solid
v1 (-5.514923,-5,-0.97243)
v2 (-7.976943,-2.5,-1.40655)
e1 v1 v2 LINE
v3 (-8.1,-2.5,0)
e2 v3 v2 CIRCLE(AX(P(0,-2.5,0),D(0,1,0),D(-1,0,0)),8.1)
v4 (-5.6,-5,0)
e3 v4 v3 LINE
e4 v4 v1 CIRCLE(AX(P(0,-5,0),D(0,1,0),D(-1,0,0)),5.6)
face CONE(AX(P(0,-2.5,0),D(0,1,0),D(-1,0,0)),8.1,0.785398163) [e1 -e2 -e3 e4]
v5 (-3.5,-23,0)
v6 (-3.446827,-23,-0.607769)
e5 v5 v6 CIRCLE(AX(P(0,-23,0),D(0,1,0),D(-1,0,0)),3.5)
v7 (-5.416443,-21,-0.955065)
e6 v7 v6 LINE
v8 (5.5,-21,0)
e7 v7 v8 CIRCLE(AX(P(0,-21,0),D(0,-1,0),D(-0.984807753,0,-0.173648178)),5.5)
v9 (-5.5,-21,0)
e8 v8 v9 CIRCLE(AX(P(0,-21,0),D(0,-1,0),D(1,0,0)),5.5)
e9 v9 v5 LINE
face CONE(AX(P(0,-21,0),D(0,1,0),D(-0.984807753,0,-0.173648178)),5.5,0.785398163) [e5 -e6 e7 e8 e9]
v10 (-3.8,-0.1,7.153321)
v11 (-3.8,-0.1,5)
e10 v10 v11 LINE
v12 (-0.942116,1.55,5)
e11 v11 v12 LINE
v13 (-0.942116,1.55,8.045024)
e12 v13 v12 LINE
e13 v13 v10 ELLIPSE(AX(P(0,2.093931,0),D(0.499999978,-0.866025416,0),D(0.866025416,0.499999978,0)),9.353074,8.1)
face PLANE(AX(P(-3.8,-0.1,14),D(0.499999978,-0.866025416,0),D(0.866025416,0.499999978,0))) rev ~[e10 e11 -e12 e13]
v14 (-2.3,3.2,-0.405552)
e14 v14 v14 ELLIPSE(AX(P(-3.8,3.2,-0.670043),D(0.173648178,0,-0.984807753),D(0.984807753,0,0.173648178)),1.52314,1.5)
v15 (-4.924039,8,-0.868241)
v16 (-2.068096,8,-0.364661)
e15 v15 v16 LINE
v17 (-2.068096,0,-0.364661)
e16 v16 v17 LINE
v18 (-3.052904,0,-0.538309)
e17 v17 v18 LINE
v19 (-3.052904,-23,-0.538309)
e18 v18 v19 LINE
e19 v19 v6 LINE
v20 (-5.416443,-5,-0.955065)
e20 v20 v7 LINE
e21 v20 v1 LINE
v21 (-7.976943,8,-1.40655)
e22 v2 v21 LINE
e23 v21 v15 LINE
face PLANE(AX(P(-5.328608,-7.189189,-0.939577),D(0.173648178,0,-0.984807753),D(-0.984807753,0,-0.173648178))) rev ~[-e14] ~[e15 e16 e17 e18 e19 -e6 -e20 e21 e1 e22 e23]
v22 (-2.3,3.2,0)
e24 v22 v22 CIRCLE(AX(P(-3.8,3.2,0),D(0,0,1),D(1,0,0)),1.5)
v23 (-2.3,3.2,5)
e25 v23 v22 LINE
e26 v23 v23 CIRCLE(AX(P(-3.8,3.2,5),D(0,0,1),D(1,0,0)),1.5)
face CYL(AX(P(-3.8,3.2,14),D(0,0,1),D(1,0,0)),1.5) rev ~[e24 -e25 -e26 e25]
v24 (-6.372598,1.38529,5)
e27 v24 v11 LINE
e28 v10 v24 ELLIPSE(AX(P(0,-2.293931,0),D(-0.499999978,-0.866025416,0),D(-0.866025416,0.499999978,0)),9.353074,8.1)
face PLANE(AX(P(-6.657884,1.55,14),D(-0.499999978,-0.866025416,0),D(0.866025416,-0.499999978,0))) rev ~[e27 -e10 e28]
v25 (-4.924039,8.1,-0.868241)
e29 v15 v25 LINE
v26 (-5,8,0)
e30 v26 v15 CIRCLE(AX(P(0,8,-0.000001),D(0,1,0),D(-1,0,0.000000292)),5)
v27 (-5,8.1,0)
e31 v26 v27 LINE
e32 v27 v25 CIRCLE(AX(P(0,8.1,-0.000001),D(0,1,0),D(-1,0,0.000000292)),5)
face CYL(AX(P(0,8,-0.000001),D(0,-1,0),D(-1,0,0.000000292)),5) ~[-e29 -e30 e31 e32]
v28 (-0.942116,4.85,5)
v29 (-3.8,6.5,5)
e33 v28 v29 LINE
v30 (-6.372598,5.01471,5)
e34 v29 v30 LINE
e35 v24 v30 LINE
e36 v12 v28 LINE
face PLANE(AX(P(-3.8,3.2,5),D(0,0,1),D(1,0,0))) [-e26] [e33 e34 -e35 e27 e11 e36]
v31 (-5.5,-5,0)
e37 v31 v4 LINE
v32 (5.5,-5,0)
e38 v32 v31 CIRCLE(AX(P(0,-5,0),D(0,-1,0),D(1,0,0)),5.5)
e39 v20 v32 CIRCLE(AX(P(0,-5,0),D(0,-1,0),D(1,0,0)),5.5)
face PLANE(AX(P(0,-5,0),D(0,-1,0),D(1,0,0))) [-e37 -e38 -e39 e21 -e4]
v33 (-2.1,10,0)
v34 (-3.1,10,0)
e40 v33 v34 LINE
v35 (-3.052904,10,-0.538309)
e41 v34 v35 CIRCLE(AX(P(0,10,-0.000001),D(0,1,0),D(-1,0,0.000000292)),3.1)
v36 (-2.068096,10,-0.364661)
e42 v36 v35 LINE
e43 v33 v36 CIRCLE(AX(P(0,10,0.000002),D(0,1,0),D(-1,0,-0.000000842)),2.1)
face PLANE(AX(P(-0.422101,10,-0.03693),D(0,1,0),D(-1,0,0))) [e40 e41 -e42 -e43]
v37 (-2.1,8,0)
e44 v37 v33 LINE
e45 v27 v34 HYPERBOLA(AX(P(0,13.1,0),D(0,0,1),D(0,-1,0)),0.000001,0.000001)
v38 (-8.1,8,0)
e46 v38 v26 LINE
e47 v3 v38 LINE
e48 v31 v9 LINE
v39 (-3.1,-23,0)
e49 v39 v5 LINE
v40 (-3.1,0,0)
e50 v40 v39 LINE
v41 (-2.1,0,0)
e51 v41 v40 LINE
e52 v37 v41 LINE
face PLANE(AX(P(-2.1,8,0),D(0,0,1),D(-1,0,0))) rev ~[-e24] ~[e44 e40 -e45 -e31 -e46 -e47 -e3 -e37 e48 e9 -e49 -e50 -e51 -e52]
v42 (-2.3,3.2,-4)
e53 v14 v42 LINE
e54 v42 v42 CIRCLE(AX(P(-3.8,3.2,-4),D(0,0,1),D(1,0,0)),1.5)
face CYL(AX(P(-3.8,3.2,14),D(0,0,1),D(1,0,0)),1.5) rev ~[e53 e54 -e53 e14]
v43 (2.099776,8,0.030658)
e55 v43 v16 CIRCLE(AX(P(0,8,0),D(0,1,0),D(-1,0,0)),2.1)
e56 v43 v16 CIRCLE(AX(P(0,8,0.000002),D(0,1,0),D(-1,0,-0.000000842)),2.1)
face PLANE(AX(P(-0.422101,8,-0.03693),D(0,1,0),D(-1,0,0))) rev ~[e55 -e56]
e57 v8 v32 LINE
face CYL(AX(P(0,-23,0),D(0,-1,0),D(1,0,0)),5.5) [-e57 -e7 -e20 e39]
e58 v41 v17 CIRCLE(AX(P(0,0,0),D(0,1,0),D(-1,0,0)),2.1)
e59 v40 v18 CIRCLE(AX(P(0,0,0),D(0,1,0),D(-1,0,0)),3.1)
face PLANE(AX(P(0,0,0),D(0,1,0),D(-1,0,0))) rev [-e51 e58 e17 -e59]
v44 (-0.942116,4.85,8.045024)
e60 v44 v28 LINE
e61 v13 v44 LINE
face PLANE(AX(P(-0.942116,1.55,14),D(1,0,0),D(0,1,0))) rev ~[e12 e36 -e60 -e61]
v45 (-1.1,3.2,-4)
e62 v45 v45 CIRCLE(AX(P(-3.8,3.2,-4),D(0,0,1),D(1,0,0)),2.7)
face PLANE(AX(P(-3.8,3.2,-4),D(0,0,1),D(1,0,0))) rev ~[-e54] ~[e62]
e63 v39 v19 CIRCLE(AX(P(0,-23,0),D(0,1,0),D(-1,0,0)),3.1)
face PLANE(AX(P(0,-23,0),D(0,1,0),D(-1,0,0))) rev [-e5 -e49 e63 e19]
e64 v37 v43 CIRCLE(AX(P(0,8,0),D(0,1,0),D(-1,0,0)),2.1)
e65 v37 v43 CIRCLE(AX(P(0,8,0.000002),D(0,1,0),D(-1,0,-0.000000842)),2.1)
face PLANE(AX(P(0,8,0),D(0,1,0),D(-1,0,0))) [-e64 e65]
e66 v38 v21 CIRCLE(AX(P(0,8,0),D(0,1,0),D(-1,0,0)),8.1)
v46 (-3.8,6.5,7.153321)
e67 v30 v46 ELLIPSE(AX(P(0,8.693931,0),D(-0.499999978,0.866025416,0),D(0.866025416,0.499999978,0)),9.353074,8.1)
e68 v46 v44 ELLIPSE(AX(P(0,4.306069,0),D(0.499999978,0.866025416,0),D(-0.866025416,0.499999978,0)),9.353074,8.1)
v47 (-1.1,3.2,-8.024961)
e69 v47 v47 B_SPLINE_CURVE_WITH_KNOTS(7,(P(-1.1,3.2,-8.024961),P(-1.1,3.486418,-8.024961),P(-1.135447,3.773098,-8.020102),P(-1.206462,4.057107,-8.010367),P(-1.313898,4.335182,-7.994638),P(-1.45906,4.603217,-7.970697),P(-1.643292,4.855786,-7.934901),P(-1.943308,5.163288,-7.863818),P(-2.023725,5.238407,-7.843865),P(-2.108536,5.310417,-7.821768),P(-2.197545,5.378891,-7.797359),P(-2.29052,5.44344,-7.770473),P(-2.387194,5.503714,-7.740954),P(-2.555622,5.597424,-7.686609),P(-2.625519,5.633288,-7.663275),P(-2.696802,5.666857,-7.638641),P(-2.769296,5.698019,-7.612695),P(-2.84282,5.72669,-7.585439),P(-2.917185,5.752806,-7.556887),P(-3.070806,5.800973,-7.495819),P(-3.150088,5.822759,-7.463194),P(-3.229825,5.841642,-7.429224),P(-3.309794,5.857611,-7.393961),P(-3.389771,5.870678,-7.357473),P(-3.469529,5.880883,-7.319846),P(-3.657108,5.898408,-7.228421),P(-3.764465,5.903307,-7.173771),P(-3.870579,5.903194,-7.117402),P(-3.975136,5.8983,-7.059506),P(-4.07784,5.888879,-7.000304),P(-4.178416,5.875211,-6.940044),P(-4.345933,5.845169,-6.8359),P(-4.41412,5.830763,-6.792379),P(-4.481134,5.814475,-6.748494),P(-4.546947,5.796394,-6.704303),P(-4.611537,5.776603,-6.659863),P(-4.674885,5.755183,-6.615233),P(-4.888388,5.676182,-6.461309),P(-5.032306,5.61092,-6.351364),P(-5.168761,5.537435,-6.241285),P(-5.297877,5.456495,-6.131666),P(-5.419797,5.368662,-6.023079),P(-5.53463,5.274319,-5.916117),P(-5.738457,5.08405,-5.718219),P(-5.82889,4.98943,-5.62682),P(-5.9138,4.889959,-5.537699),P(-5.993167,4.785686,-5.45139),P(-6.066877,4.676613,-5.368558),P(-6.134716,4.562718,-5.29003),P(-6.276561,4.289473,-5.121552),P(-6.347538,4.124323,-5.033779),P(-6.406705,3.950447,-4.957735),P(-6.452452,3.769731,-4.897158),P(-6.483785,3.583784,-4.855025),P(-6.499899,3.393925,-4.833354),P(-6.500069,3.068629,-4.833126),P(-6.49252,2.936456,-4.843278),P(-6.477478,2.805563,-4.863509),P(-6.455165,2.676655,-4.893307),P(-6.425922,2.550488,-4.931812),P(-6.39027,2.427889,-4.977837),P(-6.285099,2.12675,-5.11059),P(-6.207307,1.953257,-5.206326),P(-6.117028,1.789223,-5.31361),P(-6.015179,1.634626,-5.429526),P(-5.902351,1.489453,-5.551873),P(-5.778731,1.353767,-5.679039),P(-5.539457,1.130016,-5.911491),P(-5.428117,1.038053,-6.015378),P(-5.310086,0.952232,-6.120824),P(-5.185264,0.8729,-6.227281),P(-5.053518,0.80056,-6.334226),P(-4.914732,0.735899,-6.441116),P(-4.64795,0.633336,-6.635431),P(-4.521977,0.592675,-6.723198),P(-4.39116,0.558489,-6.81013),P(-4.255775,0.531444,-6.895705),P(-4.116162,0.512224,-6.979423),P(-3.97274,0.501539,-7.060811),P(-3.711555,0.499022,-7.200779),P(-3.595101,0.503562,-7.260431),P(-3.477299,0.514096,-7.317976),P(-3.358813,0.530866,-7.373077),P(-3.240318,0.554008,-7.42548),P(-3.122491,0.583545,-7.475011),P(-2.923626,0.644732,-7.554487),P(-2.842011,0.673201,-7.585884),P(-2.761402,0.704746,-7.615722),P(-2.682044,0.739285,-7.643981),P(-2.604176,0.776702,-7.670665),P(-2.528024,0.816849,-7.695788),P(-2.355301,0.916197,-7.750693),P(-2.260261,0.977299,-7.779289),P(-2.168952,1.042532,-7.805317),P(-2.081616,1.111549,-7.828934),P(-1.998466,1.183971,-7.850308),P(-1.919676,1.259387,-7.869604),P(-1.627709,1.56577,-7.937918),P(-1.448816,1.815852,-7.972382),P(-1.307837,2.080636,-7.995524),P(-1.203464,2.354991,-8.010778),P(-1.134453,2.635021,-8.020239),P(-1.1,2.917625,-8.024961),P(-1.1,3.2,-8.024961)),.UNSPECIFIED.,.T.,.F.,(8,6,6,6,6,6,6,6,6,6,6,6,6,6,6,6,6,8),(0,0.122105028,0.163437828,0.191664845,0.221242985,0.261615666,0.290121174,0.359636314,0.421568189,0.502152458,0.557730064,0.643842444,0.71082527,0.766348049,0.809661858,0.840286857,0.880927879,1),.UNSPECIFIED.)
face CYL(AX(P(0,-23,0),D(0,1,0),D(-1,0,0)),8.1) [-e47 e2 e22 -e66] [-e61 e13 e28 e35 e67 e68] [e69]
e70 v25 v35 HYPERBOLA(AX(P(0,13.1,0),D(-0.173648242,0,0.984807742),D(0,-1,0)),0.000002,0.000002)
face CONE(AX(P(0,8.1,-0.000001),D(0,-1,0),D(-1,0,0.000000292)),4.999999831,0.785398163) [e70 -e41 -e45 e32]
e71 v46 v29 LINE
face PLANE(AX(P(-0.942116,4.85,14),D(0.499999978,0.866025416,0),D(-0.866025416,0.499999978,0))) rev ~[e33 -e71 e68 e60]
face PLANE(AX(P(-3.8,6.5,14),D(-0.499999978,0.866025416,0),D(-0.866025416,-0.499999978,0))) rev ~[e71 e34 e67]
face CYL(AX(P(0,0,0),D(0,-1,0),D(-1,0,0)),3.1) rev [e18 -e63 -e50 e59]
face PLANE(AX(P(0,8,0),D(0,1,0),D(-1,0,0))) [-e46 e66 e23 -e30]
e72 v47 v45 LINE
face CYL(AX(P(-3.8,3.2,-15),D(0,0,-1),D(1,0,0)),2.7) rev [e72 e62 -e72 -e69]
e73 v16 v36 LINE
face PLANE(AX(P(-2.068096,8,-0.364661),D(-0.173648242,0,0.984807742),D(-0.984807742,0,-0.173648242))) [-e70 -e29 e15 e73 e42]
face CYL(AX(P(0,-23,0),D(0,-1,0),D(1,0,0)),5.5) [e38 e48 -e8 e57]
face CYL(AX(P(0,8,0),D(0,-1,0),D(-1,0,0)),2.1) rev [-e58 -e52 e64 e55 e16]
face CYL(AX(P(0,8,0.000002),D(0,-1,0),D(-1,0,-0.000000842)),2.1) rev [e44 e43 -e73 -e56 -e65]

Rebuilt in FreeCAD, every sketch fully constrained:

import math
import FreeCAD as App
import Part
import Sketcher
Q = App.Units.Quantity


def edges_at(feature, points):
    """Names of the edges that pass closest to the given points."""
    edges = feature.Shape.Edges
    near = lambda p: min(range(len(edges)), key=lambda i: edges[i].distToShape(Part.Vertex(*p))[0])
    return sorted({f"Edge{near(p) + 1}" for p in points})


def add_polygon(sketch, points):
    """Adds a closed chain of lines whose ends are joined by coincident constraints."""
    first, n = sketch.GeometryCount, len(points)
    for a, b in zip(points, points[1:] + points[:1]):
        sketch.addGeometry(Part.LineSegment(App.Vector(*a, 0), App.Vector(*b, 0)), False)
    for i in range(n):
        sketch.addConstraint(Sketcher.Constraint("Coincident", first + i, 2, first + (i + 1) % n, 1))

doc = App.newDocument("Part")
params = doc.addObject("Spreadsheet::Sheet", "Params")
for row, (alias, value) in enumerate([
    ("sketch1_width", "6 mm"),
    ("sketch1_width2", "5 mm"),
    ("sketch1_height", "8 mm"),
    ("sketch1_height2", "31 mm"),
    ("revolution_angle", "350 deg"),
    ("sketch2_diameter", "3 mm"),
    ("sketch3_height", "3.3 mm"),
    ("sketch3_length", "3.3 mm"),
    ("pocket2_length", "9 mm"),
    ("sketch4_diameter", "5.4 mm"),
    ("pocket3_length", "11 mm"),
    ("sketch5_diameter", "11 mm"),
    ("sketch5_diameter2", "16.2 mm"),
    ("pocket4_length", "18 mm"),
    ("chamfer_size", "2.5 mm"),
    ("chamfer2_size", "2 mm"),
    ("sketch6_radius", "5 mm"),
    ("sketch6_radius2", "2.1 mm"),
    ("pad1_length", "2 mm"),
    ("chamfer3_size", "1.9 mm"),
], start=1):
    params.set(f"A{row}", alias)
    params.set(f"B{row}", "=" + value)
    params.setAlias(f"B{row}", alias)

body = doc.addObject("PartDesign::Body", "Body")

# Sketch on XY plane
sketch1 = body.newObject("Sketcher::SketchObject", "Sketch")
sketch1.AttachmentSupport = (doc.getObject("XY_Plane"), [""])
sketch1.MapMode = "FlatFace"
add_polygon(sketch1, [(-2.1, 0), (-2.1, 8), (-8.1, 8), (-8.1, -23), (-3.1, -23), (-3.1, 0)])  # lines 0-5
sketch1.addConstraint(Sketcher.Constraint("Vertical", 0))
sketch1.addConstraint(Sketcher.Constraint("Horizontal", 1))
sketch1.addConstraint(Sketcher.Constraint("Vertical", 2))
sketch1.addConstraint(Sketcher.Constraint("Horizontal", 3))
sketch1.addConstraint(Sketcher.Constraint("Vertical", 4))
sketch1.addConstraint(Sketcher.Constraint("Horizontal", 5))
sketch1.addConstraint(Sketcher.Constraint("PointOnObject", 4, 2, -1))
sketch1.addConstraint(Sketcher.Constraint("DistanceX", 1, 2, 1, 1, Q("6 mm")))
sketch1.addConstraint(Sketcher.Constraint("DistanceX", 3, 1, 3, 2, Q("5 mm")))
sketch1.addConstraint(Sketcher.Constraint("DistanceY", 0, 1, 0, 2, Q("8 mm")))
sketch1.addConstraint(Sketcher.Constraint("DistanceY", 2, 2, 2, 1, Q("31 mm")))
sketch1.addConstraint(Sketcher.Constraint("DistanceX", 0, 2, -1, 1, Q("2.1 mm")))
sketch1.setExpression("Constraints[13]", "Params.sketch1_width")
sketch1.setExpression("Constraints[14]", "Params.sketch1_width2")
sketch1.setExpression("Constraints[15]", "Params.sketch1_height")
sketch1.setExpression("Constraints[16]", "Params.sketch1_height2")
revolution = body.newObject("PartDesign::Revolution", "Revolution")
revolution.Profile = sketch1
revolution.ReferenceAxis = (sketch1, ["V_Axis"])
revolution.setExpression("Angle", "Params.revolution_angle")

# Sketch on XY plane
sketch2 = body.newObject("Sketcher::SketchObject", "Sketch001")
sketch2.AttachmentSupport = (doc.getObject("XY_Plane"), [""])
sketch2.MapMode = "FlatFace"
sketch2.AttachmentOffset = App.Placement(App.Vector(0, 0, 14), App.Rotation())
sketch2.addGeometry(Part.Circle(App.Vector(-3.8, 3.2, 0), App.Vector(0, 0, 1), 1.5), False)
sketch2.addConstraint(Sketcher.Constraint("Diameter", 0, Q("3 mm")))
sketch2.addConstraint(Sketcher.Constraint("DistanceX", 0, 3, -1, 1, Q("3.8 mm")))
sketch2.addConstraint(Sketcher.Constraint("DistanceY", -1, 1, 0, 3, Q("3.2 mm")))
sketch2.setExpression("Constraints[0]", "Params.sketch2_diameter")
pocket1 = body.newObject("PartDesign::Pocket", "Pocket")
pocket1.Profile = sketch2
pocket1.Type = "ThroughAll"

# Sketch on XY plane
sketch3 = body.newObject("Sketcher::SketchObject", "Sketch002")
sketch3.AttachmentSupport = (doc.getObject("XY_Plane"), [""])
sketch3.MapMode = "FlatFace"
sketch3.AttachmentOffset = App.Placement(App.Vector(0, 0, 14), App.Rotation())
add_polygon(sketch3, [(-3.8, -0.1), (-0.9, 1.6), (-0.9, 4.8), (-3.8, 6.5), (-6.7, 4.8), (-6.7, 1.6)])  # lines 0-5
sketch3.addConstraint(Sketcher.Constraint("Vertical", 1))
sketch3.addConstraint(Sketcher.Constraint("Vertical", 4))
sketch3.addConstraint(Sketcher.Constraint("Parallel", 0, 3))
sketch3.addConstraint(Sketcher.Constraint("Parallel", 2, 5))
sketch3.addConstraint(Sketcher.Constraint("Horizontal", 1, 2, 3, 2))
sketch3.addConstraint(Sketcher.Constraint("Horizontal", 0, 2, 4, 2))
sketch3.addConstraint(Sketcher.Constraint("Vertical", 2, 2, 5, 2))
sketch3.addConstraint(Sketcher.Constraint("Angle", 0, Q("29.999999 deg")))
sketch3.addConstraint(Sketcher.Constraint("DistanceY", 1, 1, 1, 2, Q("3.3 mm")))
sketch3.addConstraint(Sketcher.Constraint("Distance", 0, Q("3.3 mm")))
sketch3.addConstraint(Sketcher.Constraint("DistanceX", 2, 2, -1, 1, Q("3.8 mm")))
sketch3.addConstraint(Sketcher.Constraint("DistanceY", -1, 1, 2, 2, Q("6.5 mm")))
sketch3.setExpression("Constraints[14]", "Params.sketch3_height")
sketch3.setExpression("Constraints[15]", "Params.sketch3_length")
pocket2 = body.newObject("PartDesign::Pocket", "Pocket001")
pocket2.Profile = sketch3
pocket2.setExpression("Length", "Params.pocket2_length")

# Sketch on XY plane
sketch4 = body.newObject("Sketcher::SketchObject", "Sketch003")
sketch4.AttachmentSupport = (doc.getObject("XY_Plane"), [""])
sketch4.MapMode = "FlatFace"
sketch4.AttachmentOffset = App.Placement(App.Vector(0, 0, -15), App.Rotation())
sketch4.addGeometry(Part.Circle(App.Vector(-3.8, 3.2, 0), App.Vector(0, 0, 1), 2.7), False)
sketch4.addConstraint(Sketcher.Constraint("Diameter", 0, Q("5.4 mm")))
sketch4.addConstraint(Sketcher.Constraint("DistanceX", 0, 3, -1, 1, Q("3.8 mm")))
sketch4.addConstraint(Sketcher.Constraint("DistanceY", -1, 1, 0, 3, Q("3.2 mm")))
sketch4.setExpression("Constraints[0]", "Params.sketch4_diameter")
pocket3 = body.newObject("PartDesign::Pocket", "Pocket002")
pocket3.Profile = sketch4
pocket3.setExpression("Length", "Params.pocket3_length")
pocket3.Reversed = True

# Sketch on XZ plane
sketch5 = body.newObject("Sketcher::SketchObject", "Sketch004")
sketch5.AttachmentSupport = (doc.getObject("XZ_Plane"), [""])
sketch5.MapMode = "FlatFace"
sketch5.AttachmentOffset = App.Placement(App.Vector(0, 0, 23), App.Rotation())
sketch5.addGeometry(Part.Circle(App.Vector(0, 0, 0), App.Vector(0, 0, 1), 8), False)
sketch5.addGeometry(Part.Circle(App.Vector(0, 0, 0), App.Vector(0, 0, 1), 6), False)
sketch5.addConstraint(Sketcher.Constraint("Coincident", 0, 3, -1, 1))
sketch5.addConstraint(Sketcher.Constraint("Coincident", 1, 3, -1, 1))
sketch5.addConstraint(Sketcher.Constraint("Diameter", 1, Q("11 mm")))
sketch5.addConstraint(Sketcher.Constraint("Diameter", 0, Q("16.2 mm")))
sketch5.setExpression("Constraints[2]", "Params.sketch5_diameter")
sketch5.setExpression("Constraints[3]", "Params.sketch5_diameter2")
pocket4 = body.newObject("PartDesign::Pocket", "Pocket003")
pocket4.Profile = sketch5
pocket4.setExpression("Length", "Params.pocket4_length")
doc.recompute()

chamfer = body.newObject("PartDesign::Chamfer", "Chamfer")
chamfer.Base = (pocket4, edges_at(pocket4, [(8.069, -5, 0.706)]))
chamfer.setExpression("Size", "Params.chamfer_size")
doc.recompute()

chamfer2 = body.newObject("PartDesign::Chamfer", "Chamfer001")
chamfer2.Base = (chamfer, edges_at(chamfer, [(0.479, -23, -5.479)]))
chamfer2.setExpression("Size", "Params.chamfer2_size")

# Sketch on XZ plane
sketch6 = body.newObject("Sketcher::SketchObject", "Sketch005")
sketch6.AttachmentSupport = (doc.getObject("XZ_Plane"), [""])
sketch6.MapMode = "FlatFace"
sketch6.AttachmentOffset = App.Placement(App.Vector(0, 0, -8), App.Rotation())
sketch6.addGeometry(Part.ArcOfCircle(Part.Circle(App.Vector(0, 0, 0), App.Vector(0, 0, 1), 5), math.radians(-170), math.radians(180)), False)
sketch6.addGeometry(Part.LineSegment(App.Vector(-4.92, -0.87, 0), App.Vector(-2.07, -0.36, 0)), False)
sketch6.addGeometry(Part.ArcOfCircle(Part.Circle(App.Vector(0, 0, 0), App.Vector(0, 0, 1), 2.1), math.radians(-170), math.radians(180)), False)
sketch6.addGeometry(Part.LineSegment(App.Vector(-2.1, 0, 0), App.Vector(-5, 0, 0)), False)
sketch6.addConstraint(Sketcher.Constraint("Coincident", 0, 1, 1, 1))
sketch6.addConstraint(Sketcher.Constraint("Coincident", 1, 2, 2, 1))
sketch6.addConstraint(Sketcher.Constraint("Coincident", 2, 2, 3, 1))
sketch6.addConstraint(Sketcher.Constraint("Coincident", 3, 2, 0, 2))
sketch6.addConstraint(Sketcher.Constraint("Horizontal", 3))
sketch6.addConstraint(Sketcher.Constraint("Coincident", 0, 3, -1, 1))
sketch6.addConstraint(Sketcher.Constraint("Coincident", 2, 3, -1, 1))
sketch6.addConstraint(Sketcher.Constraint("PointOnObject", 2, 2, -1))
sketch6.addConstraint(Sketcher.Constraint("Radius", 0, Q("5 mm")))
sketch6.addConstraint(Sketcher.Constraint("Radius", 2, Q("2.1 mm")))
sketch6.addConstraint(Sketcher.Constraint("Angle", 1, Q("10.000004 deg")))
sketch6.addConstraint(Sketcher.Constraint("DistanceX", 0, 1, -1, 1, Q("4.924039 mm")))
sketch6.setExpression("Constraints[8]", "Params.sketch6_radius")
sketch6.setExpression("Constraints[9]", "Params.sketch6_radius2")
pad1 = body.newObject("PartDesign::Pad", "Pad")
pad1.Profile = sketch6
pad1.setExpression("Length", "Params.pad1_length")
pad1.Reversed = True
doc.recompute()

chamfer3 = body.newObject("PartDesign::Chamfer", "Chamfer002")
chamfer3.Base = (pad1, edges_at(pad1, [(4.981, 10, 0.436)]))
chamfer3.setExpression("Size", "Params.chamfer3_size")

doc.recompute()
